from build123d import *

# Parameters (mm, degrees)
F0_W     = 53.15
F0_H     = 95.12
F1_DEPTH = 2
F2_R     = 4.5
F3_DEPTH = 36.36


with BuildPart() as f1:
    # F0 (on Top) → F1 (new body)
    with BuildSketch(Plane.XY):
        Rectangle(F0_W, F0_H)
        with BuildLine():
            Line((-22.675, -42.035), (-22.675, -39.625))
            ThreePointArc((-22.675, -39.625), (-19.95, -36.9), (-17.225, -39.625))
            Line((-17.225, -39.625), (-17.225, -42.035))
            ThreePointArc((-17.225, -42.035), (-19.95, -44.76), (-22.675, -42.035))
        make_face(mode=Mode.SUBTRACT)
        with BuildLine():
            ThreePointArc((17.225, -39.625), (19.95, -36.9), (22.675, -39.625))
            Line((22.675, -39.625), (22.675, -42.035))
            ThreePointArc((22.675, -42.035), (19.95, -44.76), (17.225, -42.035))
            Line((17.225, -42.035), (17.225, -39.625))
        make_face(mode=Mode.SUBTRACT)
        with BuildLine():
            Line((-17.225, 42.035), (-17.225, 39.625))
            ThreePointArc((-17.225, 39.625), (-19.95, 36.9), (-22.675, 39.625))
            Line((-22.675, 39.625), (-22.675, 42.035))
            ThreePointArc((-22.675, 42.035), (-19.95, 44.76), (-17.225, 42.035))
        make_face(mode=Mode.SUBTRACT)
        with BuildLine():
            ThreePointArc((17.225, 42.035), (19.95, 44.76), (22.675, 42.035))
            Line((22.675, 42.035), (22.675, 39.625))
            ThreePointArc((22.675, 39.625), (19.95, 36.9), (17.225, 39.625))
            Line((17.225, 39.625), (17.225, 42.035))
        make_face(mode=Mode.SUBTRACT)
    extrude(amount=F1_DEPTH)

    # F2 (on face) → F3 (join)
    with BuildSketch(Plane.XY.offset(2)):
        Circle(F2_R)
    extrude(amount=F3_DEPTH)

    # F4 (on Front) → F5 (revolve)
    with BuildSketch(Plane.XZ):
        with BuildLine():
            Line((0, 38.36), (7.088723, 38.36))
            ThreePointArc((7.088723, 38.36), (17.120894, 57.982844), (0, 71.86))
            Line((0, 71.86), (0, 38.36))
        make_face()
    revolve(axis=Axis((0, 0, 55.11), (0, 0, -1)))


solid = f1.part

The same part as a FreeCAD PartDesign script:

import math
import FreeCAD as App
import Part
import Sketcher
from FreeCAD import Vector

doc = App.newDocument("Part")
params = doc.addObject("Spreadsheet::Sheet", "Params")
for row, (alias, value) in enumerate([
    ("sketch1_width", "53.15 mm"),
    ("sketch1_height", "95.12 mm"),
    ("sketch1_height2", "2.41 mm"),
    ("pad1_length", "2 mm"),
    ("sketch2_diameter", "9 mm"),
    ("pad2_length", "36.36 mm"),
    ("sketch3_radius", "17.5 mm"),
    ("sketch3_height", "33.5 mm"),
    ("revolution_angle", "360 deg"),
], start=1):
    params.set(f"A{row}", alias)
    params.set(f"B{row}", "=" + value)
    params.setAlias(f"B{row}", alias)

body = doc.addObject("PartDesign::Body", "Body")

# Sketch on XY plane
sketch1 = doc.addObject("Sketcher::SketchObject", "Sketch")
body.addObject(sketch1)
sketch1.AttachmentSupport = (doc.XY_Plane, [""])
sketch1.MapMode = "FlatFace"
sketch1.addGeometry([
    Part.LineSegment(Vector(-26.6, 47.6, 0), Vector(-26.6, -47.6, 0)),  # 0
    Part.LineSegment(Vector(-26.6, -47.6, 0), Vector(26.6, -47.6, 0)),  # 1
    Part.LineSegment(Vector(26.6, -47.6, 0), Vector(26.6, 47.6, 0)),  # 2
    Part.LineSegment(Vector(26.6, 47.6, 0), Vector(-26.6, 47.6, 0)),  # 3
    Part.ArcOfCircle(Part.Circle(Vector(-19.9, -42, 0), Vector(0, 0, 1), 2.7), math.radians(180), math.radians(360)),  # 4
    Part.LineSegment(Vector(-22.7, -42, 0), Vector(-22.7, -39.6, 0)),  # 5
    Part.ArcOfCircle(Part.Circle(Vector(-19.9, -39.6, 0), Vector(0, 0, 1), 2.7), math.radians(0), math.radians(180)),  # 6
    Part.LineSegment(Vector(-17.2, -39.6, 0), Vector(-17.2, -42, 0)),  # 7
    Part.LineSegment(Vector(17.2, -42, 0), Vector(17.2, -39.6, 0)),  # 8
    Part.ArcOfCircle(Part.Circle(Vector(19.9, -39.6, 0), Vector(0, 0, 1), 2.7), math.radians(0), math.radians(180)),  # 9
    Part.LineSegment(Vector(22.7, -39.6, 0), Vector(22.7, -42, 0)),  # 10
    Part.ArcOfCircle(Part.Circle(Vector(19.9, -42, 0), Vector(0, 0, 1), 2.7), math.radians(180), math.radians(360)),  # 11
    Part.ArcOfCircle(Part.Circle(Vector(-19.9, 42, 0), Vector(0, 0, 1), 2.7), math.radians(0), math.radians(180)),  # 12
    Part.LineSegment(Vector(-17.2, 42, 0), Vector(-17.2, 39.6, 0)),  # 13
    Part.ArcOfCircle(Part.Circle(Vector(-19.9, 39.6, 0), Vector(0, 0, 1), 2.7), math.radians(180), math.radians(360)),  # 14
    Part.LineSegment(Vector(-22.7, 39.6, 0), Vector(-22.7, 42, 0)),  # 15
    Part.LineSegment(Vector(17.2, 39.6, 0), Vector(17.2, 42, 0)),  # 16
    Part.ArcOfCircle(Part.Circle(Vector(19.9, 42, 0), Vector(0, 0, 1), 2.7), math.radians(0), math.radians(180)),  # 17
    Part.LineSegment(Vector(22.7, 42, 0), Vector(22.7, 39.6, 0)),  # 18
    Part.ArcOfCircle(Part.Circle(Vector(19.9, 39.6, 0), Vector(0, 0, 1), 2.7), math.radians(180), math.radians(360)),  # 19
], False)
sketch1.addConstraint([
    Sketcher.Constraint("Coincident", 0, 2, 1, 1),
    Sketcher.Constraint("Coincident", 1, 2, 2, 1),
    Sketcher.Constraint("Coincident", 2, 2, 3, 1),
    Sketcher.Constraint("Coincident", 3, 2, 0, 1),
    Sketcher.Constraint("Tangent", 4, 1, 5, 1),
    Sketcher.Constraint("Tangent", 5, 2, 6, 2),
    Sketcher.Constraint("Tangent", 6, 1, 7, 1),
    Sketcher.Constraint("Tangent", 7, 2, 4, 2),
    Sketcher.Constraint("Tangent", 8, 2, 9, 2),
    Sketcher.Constraint("Tangent", 9, 1, 10, 1),
    Sketcher.Constraint("Tangent", 10, 2, 11, 2),
    Sketcher.Constraint("Tangent", 11, 1, 8, 1),
    Sketcher.Constraint("Tangent", 12, 1, 13, 1),
    Sketcher.Constraint("Tangent", 13, 2, 14, 2),
    Sketcher.Constraint("Tangent", 14, 1, 15, 1),
    Sketcher.Constraint("Tangent", 15, 2, 12, 2),
    Sketcher.Constraint("Tangent", 16, 2, 17, 2),
    Sketcher.Constraint("Tangent", 17, 1, 18, 1),
    Sketcher.Constraint("Tangent", 18, 2, 19, 2),
    Sketcher.Constraint("Tangent", 19, 1, 16, 1),
    Sketcher.Constraint("Vertical", 0),
    Sketcher.Constraint("Horizontal", 1),
    Sketcher.Constraint("Vertical", 2),
    Sketcher.Constraint("Horizontal", 3),
    Sketcher.Constraint("Vertical", 5),
    Sketcher.Constraint("Vertical", 7),
    Sketcher.Constraint("Vertical", 8),
    Sketcher.Constraint("Vertical", 10),
    Sketcher.Constraint("Vertical", 13),
    Sketcher.Constraint("Vertical", 15),
    Sketcher.Constraint("Vertical", 16),
    Sketcher.Constraint("Vertical", 18),
    Sketcher.Constraint("Equal", 6, 9),
    Sketcher.Constraint("Equal", 11, 12),
    Sketcher.Constraint("Equal", 14, 17),
    Sketcher.Constraint("Symmetric", 11, 3, 12, 3, -1, 1),
    Sketcher.Constraint("Symmetric", 4, 3, 17, 3, -1, 1),
    Sketcher.Constraint("Symmetric", 0, 2, 2, 2, -1, 1),
    Sketcher.Constraint("Symmetric", 6, 3, 9, 3, -2),
    Sketcher.Constraint("Horizontal", 4, 3, 11, 3),
    Sketcher.Constraint("Horizontal", 14, 3, 19, 3),
    Sketcher.Constraint("Equal", 10, 13),
    Sketcher.Constraint("Radius", 4, 2.725),
    Sketcher.Constraint("DistanceX", 1, 1, 1, 2, 53.15),
    Sketcher.Constraint("DistanceY", 0, 2, 0, 1, 95.12),
    Sketcher.Constraint("DistanceY", 5, 1, 5, 2, 2.41),
    Sketcher.Constraint("DistanceX", 6, 3, 9, 3, 39.9),
    Sketcher.Constraint("DistanceY", 6, 3, 12, 3, 81.66),
])
sketch1.setExpression("Constraints[43]", "Params.sketch1_width")
sketch1.setExpression("Constraints[44]", "Params.sketch1_height")
sketch1.setExpression("Constraints[45]", "Params.sketch1_height2")
pad1 = doc.addObject("PartDesign::Pad", "Pad")
body.addObject(pad1)
pad1.Profile = sketch1
pad1.setExpression("Length", "Params.pad1_length")

# Sketch on XY plane
sketch2 = doc.addObject("Sketcher::SketchObject", "Sketch001")
body.addObject(sketch2)
sketch2.AttachmentSupport = (doc.XY_Plane, [""])
sketch2.MapMode = "FlatFace"
sketch2.AttachmentOffset = App.Placement(Vector(0, 0, 2), App.Rotation())
sketch2.addGeometry(Part.Circle(Vector(0, 0, 0), Vector(0, 0, 1), 4.5), False)
sketch2.addConstraint([
    Sketcher.Constraint("Coincident", 0, 3, -1, 1),
    Sketcher.Constraint("Diameter", 0, 9.0),
])
sketch2.setExpression("Constraints[1]", "Params.sketch2_diameter")
pad2 = doc.addObject("PartDesign::Pad", "Pad001")
body.addObject(pad2)
pad2.Profile = sketch2
pad2.setExpression("Length", "Params.pad2_length")

# Sketch on XZ plane
sketch3 = doc.addObject("Sketcher::SketchObject", "Sketch002")
body.addObject(sketch3)
sketch3.AttachmentSupport = (doc.XZ_Plane, [""])
sketch3.MapMode = "FlatFace"
sketch3.addGeometry([
    Part.LineSegment(Vector(0, 38, 0), Vector(7, 38, 0)),
    Part.ArcOfCircle(Part.Circle(Vector(0, 54, 0), Vector(0, 0, 1), 17), math.radians(-66), math.radians(90)),
    Part.LineSegment(Vector(0, 72, 0), Vector(0, 38, 0)),
], False)
sketch3.addConstraint([
    Sketcher.Constraint("Coincident", 0, 2, 1, 1),
    Sketcher.Constraint("Coincident", 1, 2, 2, 1),
    Sketcher.Constraint("Coincident", 2, 2, 0, 1),
    Sketcher.Constraint("Horizontal", 0),
    Sketcher.Constraint("Vertical", 2),
    Sketcher.Constraint("PointOnObject", 1, 3, -2),
    Sketcher.Constraint("PointOnObject", 1, 2, -2),
    Sketcher.Constraint("Radius", 1, 17.5),
    Sketcher.Constraint("DistanceY", 2, 2, 2, 1, 33.5),
    Sketcher.Constraint("DistanceY", -1, 1, 1, 3, 54.36),
])
sketch3.setExpression("Constraints[7]", "Params.sketch3_radius")
sketch3.setExpression("Constraints[8]", "Params.sketch3_height")
revolution = doc.addObject("PartDesign::Revolution", "Revolution")
body.addObject(revolution)
revolution.Profile = sketch3
revolution.ReferenceAxis = (sketch3, ["V_Axis"])
revolution.setExpression("Angle", "Params.revolution_angle")

doc.recompute()
